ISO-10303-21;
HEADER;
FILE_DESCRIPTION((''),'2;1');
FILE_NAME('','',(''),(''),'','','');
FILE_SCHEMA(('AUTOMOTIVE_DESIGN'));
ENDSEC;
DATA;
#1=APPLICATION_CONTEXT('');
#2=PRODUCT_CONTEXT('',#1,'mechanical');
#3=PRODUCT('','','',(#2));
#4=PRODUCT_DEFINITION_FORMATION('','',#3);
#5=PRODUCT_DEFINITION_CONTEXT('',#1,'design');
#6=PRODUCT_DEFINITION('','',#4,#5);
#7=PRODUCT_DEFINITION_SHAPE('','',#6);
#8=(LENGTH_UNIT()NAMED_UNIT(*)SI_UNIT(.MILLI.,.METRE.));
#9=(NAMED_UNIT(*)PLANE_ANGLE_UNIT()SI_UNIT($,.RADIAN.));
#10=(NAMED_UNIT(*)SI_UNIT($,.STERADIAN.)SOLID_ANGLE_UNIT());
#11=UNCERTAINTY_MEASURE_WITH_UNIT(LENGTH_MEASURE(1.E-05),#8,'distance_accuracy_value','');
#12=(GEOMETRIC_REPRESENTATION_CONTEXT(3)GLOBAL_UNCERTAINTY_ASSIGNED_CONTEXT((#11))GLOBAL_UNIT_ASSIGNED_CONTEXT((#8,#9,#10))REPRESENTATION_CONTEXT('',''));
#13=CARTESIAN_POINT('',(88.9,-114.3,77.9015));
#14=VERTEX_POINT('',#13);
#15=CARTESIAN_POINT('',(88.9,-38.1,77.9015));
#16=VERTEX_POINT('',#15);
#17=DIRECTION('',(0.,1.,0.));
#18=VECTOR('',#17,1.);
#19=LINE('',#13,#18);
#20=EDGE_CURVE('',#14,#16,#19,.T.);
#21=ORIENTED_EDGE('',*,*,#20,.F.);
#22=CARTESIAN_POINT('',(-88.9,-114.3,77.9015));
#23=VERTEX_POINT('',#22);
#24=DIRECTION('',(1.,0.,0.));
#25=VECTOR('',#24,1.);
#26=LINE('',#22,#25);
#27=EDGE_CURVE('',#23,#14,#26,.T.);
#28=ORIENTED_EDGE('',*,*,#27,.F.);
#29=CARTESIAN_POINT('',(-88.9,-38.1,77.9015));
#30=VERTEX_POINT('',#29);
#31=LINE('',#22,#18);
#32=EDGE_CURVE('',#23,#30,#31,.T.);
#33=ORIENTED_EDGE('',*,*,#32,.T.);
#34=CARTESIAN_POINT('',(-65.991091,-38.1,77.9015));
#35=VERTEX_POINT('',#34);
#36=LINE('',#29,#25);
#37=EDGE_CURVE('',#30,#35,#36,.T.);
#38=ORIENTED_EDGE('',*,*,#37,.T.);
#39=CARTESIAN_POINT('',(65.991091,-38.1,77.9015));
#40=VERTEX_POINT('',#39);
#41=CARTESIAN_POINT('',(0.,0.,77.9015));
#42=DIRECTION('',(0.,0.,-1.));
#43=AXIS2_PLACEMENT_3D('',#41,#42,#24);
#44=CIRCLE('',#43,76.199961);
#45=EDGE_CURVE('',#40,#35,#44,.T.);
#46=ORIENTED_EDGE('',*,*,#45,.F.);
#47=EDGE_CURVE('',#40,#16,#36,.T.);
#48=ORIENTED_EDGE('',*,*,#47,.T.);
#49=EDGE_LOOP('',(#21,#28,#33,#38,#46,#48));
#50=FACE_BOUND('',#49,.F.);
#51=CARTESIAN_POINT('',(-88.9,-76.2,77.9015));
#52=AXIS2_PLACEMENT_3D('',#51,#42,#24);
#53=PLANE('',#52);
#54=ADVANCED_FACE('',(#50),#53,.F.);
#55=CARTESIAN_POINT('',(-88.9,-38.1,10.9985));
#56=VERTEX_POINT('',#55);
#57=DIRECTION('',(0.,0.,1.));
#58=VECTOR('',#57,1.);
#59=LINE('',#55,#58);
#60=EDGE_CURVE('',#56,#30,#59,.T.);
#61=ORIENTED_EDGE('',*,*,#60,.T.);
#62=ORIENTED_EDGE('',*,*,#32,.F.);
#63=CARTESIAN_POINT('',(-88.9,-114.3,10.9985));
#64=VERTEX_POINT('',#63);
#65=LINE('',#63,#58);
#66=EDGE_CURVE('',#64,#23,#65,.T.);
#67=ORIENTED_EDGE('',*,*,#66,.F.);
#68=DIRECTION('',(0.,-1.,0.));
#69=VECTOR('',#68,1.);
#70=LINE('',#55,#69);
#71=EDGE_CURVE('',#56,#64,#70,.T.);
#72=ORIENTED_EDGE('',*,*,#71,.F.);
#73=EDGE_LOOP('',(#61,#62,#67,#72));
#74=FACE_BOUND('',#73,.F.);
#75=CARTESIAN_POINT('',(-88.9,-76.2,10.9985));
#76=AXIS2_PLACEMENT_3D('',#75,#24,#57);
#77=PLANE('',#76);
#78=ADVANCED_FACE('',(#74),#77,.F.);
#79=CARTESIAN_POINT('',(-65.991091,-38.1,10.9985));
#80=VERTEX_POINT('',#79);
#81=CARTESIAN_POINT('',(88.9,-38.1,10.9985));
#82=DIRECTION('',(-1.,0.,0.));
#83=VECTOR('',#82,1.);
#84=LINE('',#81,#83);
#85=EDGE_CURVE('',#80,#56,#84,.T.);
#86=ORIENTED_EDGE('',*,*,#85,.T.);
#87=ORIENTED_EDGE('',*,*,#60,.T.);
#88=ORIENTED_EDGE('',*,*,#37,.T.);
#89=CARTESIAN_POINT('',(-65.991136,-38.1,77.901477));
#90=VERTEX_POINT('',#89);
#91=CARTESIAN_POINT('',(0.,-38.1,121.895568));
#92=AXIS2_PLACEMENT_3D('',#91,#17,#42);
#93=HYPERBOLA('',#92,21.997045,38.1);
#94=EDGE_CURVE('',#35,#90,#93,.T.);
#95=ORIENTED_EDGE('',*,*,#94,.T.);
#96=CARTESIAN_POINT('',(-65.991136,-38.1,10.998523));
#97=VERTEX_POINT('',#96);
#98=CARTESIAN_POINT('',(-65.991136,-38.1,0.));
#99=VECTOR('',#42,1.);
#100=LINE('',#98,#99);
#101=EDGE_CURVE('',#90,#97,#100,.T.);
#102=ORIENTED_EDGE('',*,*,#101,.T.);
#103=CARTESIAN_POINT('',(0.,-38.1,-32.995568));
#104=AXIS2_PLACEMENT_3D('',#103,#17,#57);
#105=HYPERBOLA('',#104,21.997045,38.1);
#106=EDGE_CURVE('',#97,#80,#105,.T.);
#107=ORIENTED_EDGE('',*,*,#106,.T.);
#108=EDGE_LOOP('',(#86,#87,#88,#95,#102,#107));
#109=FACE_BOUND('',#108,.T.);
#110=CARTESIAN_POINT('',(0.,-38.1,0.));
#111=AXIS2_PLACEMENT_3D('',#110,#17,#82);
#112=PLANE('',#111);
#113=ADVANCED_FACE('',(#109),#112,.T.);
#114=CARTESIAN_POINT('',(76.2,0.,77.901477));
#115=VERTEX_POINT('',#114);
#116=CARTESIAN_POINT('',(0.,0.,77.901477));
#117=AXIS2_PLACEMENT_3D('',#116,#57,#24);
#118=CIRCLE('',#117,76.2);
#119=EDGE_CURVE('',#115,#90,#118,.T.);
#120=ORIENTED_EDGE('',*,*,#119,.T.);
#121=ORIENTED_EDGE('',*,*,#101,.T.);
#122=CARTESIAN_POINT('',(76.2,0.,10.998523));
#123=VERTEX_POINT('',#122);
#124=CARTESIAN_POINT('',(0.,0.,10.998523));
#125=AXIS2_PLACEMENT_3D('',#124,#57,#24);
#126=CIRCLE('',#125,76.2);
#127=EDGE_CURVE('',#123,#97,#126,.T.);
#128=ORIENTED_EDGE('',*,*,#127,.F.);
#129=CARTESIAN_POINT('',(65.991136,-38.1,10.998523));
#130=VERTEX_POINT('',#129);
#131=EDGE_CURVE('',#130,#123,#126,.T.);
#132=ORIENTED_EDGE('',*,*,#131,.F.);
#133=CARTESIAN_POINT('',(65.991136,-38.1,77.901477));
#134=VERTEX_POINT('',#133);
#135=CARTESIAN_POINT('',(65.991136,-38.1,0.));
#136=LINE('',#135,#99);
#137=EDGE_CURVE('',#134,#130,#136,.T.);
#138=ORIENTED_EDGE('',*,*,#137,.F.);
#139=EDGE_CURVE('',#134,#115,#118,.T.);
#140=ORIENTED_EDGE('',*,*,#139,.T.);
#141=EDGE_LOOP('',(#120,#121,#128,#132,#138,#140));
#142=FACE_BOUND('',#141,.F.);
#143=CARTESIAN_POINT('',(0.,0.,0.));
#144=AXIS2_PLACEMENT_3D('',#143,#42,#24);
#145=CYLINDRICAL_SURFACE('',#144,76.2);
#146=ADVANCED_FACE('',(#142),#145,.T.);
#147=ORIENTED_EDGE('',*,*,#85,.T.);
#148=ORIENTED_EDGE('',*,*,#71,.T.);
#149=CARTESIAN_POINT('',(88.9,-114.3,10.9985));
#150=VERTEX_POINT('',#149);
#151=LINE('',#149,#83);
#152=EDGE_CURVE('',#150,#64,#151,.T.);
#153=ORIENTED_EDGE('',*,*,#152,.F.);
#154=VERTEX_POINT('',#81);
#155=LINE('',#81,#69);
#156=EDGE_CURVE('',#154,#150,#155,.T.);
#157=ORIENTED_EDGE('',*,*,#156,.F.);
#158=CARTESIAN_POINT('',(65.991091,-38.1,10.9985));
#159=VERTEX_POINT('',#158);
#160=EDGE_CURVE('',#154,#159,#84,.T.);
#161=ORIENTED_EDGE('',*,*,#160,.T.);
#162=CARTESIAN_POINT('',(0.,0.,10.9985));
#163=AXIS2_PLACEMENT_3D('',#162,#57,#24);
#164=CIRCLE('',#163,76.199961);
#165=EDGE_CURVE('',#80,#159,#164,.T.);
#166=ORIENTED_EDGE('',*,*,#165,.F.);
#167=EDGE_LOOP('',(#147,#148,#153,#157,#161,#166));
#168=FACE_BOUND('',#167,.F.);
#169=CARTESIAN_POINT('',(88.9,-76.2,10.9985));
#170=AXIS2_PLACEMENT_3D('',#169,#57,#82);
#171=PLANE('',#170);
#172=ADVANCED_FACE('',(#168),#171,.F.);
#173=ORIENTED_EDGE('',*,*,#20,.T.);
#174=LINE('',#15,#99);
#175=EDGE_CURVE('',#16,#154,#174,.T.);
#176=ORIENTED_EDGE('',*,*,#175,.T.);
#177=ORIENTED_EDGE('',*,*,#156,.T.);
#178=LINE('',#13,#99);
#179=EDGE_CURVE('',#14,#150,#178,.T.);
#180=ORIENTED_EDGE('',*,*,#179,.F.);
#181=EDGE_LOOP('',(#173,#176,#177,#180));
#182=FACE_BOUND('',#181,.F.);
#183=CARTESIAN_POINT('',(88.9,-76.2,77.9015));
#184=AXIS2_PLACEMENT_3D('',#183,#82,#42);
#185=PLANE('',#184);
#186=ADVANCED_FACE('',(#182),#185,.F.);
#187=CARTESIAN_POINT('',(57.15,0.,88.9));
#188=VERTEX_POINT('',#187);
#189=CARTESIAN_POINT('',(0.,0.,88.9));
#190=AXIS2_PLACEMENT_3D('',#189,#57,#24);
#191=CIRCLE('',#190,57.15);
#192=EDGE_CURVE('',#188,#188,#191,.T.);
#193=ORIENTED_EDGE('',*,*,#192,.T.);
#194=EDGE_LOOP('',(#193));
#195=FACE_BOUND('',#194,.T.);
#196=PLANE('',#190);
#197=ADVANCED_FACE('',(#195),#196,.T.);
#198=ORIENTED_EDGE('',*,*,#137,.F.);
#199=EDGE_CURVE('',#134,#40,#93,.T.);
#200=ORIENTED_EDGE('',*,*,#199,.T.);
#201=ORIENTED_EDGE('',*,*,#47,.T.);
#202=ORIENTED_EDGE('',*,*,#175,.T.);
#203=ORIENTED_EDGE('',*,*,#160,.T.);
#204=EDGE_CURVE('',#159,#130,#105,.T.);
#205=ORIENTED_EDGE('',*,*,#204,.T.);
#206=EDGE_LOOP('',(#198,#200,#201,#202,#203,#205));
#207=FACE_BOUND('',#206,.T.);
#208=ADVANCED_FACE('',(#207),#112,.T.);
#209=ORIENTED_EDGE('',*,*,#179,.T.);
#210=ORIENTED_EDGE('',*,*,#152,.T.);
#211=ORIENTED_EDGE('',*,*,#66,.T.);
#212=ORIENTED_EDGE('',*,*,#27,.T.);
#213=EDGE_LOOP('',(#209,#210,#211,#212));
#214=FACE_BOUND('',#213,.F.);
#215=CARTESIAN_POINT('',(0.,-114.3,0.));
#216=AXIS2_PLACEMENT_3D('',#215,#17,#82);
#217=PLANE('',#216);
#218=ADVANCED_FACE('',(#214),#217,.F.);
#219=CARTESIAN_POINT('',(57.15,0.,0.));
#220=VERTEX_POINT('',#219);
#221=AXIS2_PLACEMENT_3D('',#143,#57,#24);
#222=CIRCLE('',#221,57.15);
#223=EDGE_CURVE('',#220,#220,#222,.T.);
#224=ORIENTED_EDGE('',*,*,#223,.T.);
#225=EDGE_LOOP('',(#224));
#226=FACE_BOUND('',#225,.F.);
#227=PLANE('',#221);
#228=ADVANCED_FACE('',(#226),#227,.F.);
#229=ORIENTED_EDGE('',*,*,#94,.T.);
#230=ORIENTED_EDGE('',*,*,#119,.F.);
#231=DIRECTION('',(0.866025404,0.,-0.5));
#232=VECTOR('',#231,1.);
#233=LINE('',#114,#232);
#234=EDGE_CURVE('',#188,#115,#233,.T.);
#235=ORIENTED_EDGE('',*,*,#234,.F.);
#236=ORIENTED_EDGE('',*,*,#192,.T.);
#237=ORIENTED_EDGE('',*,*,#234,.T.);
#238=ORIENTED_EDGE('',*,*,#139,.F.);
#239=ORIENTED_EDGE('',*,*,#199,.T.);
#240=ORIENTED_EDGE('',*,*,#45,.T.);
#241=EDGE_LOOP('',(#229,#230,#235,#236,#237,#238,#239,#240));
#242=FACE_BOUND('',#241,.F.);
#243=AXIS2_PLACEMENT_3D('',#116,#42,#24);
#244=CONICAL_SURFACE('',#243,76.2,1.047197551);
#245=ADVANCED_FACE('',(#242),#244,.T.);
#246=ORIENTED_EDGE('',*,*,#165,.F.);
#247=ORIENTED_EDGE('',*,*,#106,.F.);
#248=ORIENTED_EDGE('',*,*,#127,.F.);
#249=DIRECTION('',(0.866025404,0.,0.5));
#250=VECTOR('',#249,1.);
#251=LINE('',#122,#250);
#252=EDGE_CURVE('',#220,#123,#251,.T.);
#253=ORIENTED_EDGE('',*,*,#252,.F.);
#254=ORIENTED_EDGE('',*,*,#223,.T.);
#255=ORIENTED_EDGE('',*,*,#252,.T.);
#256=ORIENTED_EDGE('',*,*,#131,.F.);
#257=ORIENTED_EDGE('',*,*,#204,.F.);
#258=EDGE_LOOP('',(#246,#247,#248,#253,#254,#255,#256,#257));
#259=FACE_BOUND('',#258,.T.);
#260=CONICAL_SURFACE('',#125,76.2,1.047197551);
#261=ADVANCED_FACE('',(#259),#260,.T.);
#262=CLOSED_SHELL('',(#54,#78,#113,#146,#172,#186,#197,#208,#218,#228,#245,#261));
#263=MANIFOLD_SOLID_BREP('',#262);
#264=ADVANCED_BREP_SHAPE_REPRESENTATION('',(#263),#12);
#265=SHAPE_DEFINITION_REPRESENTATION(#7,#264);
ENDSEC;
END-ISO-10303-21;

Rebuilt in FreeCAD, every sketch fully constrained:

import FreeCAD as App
import Part
import Sketcher
from FreeCAD import Vector
Q = App.Units.Quantity


def edges_at(feature, points):
    """Names of the edges that pass closest to the given points."""
    edges = feature.Shape.Edges
    near = lambda p: min(range(len(edges)), key=lambda i: edges[i].distToShape(Part.Vertex(*p))[0])
    return sorted({f"Edge{near(p) + 1}" for p in points})

doc = App.newDocument("Part")
params = doc.addObject("Spreadsheet::Sheet", "Params")
for row, (alias, value) in enumerate([
    ("sketch1_diameter", "6 in"),
    ("pad1_length", "3.5 in"),
    ("chamfer_size", "0.75 in"),
    ("chamfer2_size", "0.75 in"),
    ("pad2_length", "3 in"),
], start=1):
    params.set(f"A{row}", alias)
    params.set(f"B{row}", "=" + value)
    params.setAlias(f"B{row}", alias)

body = doc.addObject("PartDesign::Body", "Body")

# Sketch on XY plane
sketch1 = body.newObject("Sketcher::SketchObject", "Sketch")
sketch1.AttachmentSupport = (doc.getObject("XY_Plane"), [""])
sketch1.MapMode = "FlatFace"
sketch1.addGeometry(Part.Circle(Vector(0, 0, 0), Vector(0, 0, 1), 76), False)
sketch1.addConstraint(Sketcher.Constraint("Coincident", 0, 3, -1, 1))
sketch1.addConstraint(Sketcher.Constraint("Diameter", 0, Q("6 in")))
sketch1.setExpression("Constraints[1]", "Params.sketch1_diameter")
pad1 = body.newObject("PartDesign::Pad", "Pad")
pad1.Profile = sketch1
pad1.setExpression("Length", "Params.pad1_length")
doc.recompute()

chamfer = body.newObject("PartDesign::Chamfer", "Chamfer")
chamfer.Base = (pad1, edges_at(pad1, [(-76.2, 0, 88.9)]))
chamfer.ChamferType = "Distance and Angle"
chamfer.setExpression("Size", "Params.chamfer_size")
chamfer.Angle = 30
chamfer.FlipDirection = True
doc.recompute()

chamfer2 = body.newObject("PartDesign::Chamfer", "Chamfer001")
chamfer2.Base = (chamfer, edges_at(chamfer, [(-76.2, 0, 0)]))
chamfer2.ChamferType = "Distance and Angle"
chamfer2.setExpression("Size", "Params.chamfer2_size")
chamfer2.Angle = 30
chamfer2.FlipDirection = True

# Sketch on XZ plane
sketch2 = body.newObject("Sketcher::SketchObject", "Sketch001")
sketch2.AttachmentSupport = (doc.getObject("XZ_Plane"), [""])
sketch2.MapMode = "FlatFace"
sketch2.AttachmentOffset = App.Placement(Vector(0, 0, 3 * 25.4), App.Rotation())
sketch2.addGeometry(Part.LineSegment(Vector(-89, 11, 0), Vector(-89, 78, 0)), False)
sketch2.addGeometry(Part.LineSegment(Vector(-89, 78, 0), Vector(89, 78, 0)), False)
sketch2.addGeometry(Part.LineSegment(Vector(89, 78, 0), Vector(89, 11, 0)), False)
sketch2.addGeometry(Part.LineSegment(Vector(89, 11, 0), Vector(-89, 11, 0)), False)
sketch2.addConstraint(Sketcher.Constraint("Coincident", 0, 2, 1, 1))
sketch2.addConstraint(Sketcher.Constraint("Coincident", 1, 2, 2, 1))
sketch2.addConstraint(Sketcher.Constraint("Coincident", 2, 2, 3, 1))
sketch2.addConstraint(Sketcher.Constraint("Coincident", 3, 2, 0, 1))
sketch2.addConstraint(Sketcher.Constraint("Vertical", 0))
sketch2.addConstraint(Sketcher.Constraint("Horizontal", 1))
sketch2.addConstraint(Sketcher.Constraint("Vertical", 2))
sketch2.addConstraint(Sketcher.Constraint("Horizontal", 3))
sketch2.addConstraint(Sketcher.Constraint("DistanceX", 0, 2, -1, 1, Q("3.5 in")))
sketch2.addConstraint(Sketcher.Constraint("DistanceX", -1, 1, 1, 2, Q("3.5 in")))
sketch2.addConstraint(Sketcher.Constraint("DistanceY", -1, 1, 0, 2, Q("3.067 in")))
sketch2.addConstraint(Sketcher.Constraint("DistanceY", -1, 1, 2, 2, Q("0.433 in")))
pad2 = body.newObject("PartDesign::Pad", "Pad001")
pad2.Profile = sketch2
pad2.setExpression("Length", "Params.pad2_length")
pad2.Midplane = True

doc.recompute()
